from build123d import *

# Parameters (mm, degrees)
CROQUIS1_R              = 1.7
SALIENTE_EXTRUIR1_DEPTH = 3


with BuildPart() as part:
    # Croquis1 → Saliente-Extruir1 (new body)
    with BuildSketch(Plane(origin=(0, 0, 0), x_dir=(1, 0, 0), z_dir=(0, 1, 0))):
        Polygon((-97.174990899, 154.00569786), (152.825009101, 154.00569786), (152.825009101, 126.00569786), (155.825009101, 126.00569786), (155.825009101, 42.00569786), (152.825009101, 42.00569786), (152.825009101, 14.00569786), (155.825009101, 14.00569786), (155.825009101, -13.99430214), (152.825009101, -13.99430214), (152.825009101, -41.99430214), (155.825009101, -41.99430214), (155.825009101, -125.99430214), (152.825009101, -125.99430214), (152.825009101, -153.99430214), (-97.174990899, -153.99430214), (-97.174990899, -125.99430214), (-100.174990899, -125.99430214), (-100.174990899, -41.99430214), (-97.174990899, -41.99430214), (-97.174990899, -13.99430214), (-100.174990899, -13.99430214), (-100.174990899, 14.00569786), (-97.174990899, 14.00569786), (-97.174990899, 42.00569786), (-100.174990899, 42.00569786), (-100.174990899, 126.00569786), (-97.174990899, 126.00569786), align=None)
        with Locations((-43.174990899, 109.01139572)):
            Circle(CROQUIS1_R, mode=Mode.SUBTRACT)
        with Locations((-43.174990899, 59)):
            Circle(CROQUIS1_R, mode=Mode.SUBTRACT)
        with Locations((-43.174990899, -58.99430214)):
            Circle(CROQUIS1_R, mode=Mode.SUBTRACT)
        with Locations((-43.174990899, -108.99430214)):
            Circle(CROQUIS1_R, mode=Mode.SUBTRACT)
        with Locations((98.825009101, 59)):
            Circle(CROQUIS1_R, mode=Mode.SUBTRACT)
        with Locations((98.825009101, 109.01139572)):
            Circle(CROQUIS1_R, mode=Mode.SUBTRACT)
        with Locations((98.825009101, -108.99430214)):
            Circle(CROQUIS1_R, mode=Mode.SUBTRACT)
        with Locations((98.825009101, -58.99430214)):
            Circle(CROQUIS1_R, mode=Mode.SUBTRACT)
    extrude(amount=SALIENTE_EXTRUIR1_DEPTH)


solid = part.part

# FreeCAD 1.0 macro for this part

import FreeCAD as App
import Part
import Sketcher

V = App.Vector
Q = App.Units.Quantity


def add_polygon(sketch, points):
    """Adds a closed chain of lines whose ends are joined by coincident constraints."""
    first, n = sketch.GeometryCount, len(points)
    for a, b in zip(points, points[1:] + points[:1]):
        sketch.addGeometry(Part.LineSegment(App.Vector(*a, 0), App.Vector(*b, 0)), False)
    for i in range(n):
        sketch.addConstraint(Sketcher.Constraint("Coincident", first + i, 2, first + (i + 1) % n, 1))

doc = App.newDocument("Part")
body = doc.addObject("PartDesign::Body", "Body")

# Sketch on XZ plane
sketch1 = body.newObject("Sketcher::SketchObject", "Sketch")
sketch1.AttachmentSupport = (doc.getObject("XZ_Plane"), [""])
sketch1.MapMode = "FlatFace"
add_polygon(sketch1, [(152.825009, -154.005698), (-97.174991, -154.005698), (-97.174991, -126.005698), (-100.174991, -126.005698), (-100.174991, -42.005698), (-97.174991, -42.005698), (-97.174991, -14.005698), (-100.174991, -14.005698), (-100.174991, 13.994302), (-97.174991, 13.994302), (-97.174991, 41.994302), (-100.174991, 41.994302), (-100.174991, 125.994302), (-97.174991, 125.994302), (-97.174991, 153.994302), (152.825009, 153.994302), (152.825009, 125.994302), (155.825009, 125.994302), (155.825009, 41.994302), (152.825009, 41.994302), (152.825009, 13.994302), (155.825009, 13.994302), (155.825009, -14.005698), (152.825009, -14.005698), (152.825009, -42.005698), (155.825009, -42.005698), (155.825009, -126.005698), (152.825009, -126.005698)])  # lines 0-27
sketch1.addGeometry(Part.Circle(V(98.825009, 108.994302, 0), V(0, 0, 1), 1.7), False)  # 28
sketch1.addGeometry(Part.Circle(V(98.825009, 58.994302, 0), V(0, 0, 1), 1.7), False)  # 29
sketch1.addGeometry(Part.Circle(V(-43.174991, 108.994302, 0), V(0, 0, 1), 1.7), False)  # 30
sketch1.addGeometry(Part.Circle(V(-43.174991, 58.994302, 0), V(0, 0, 1), 1.7), False)  # 31
sketch1.addGeometry(Part.Circle(V(98.825009, -59, 0), V(0, 0, 1), 1.7), False)  # 32
sketch1.addGeometry(Part.Circle(V(98.825009, -109.011396, 0), V(0, 0, 1), 1.7), False)  # 33
sketch1.addGeometry(Part.Circle(V(-43.174991, -59, 0), V(0, 0, 1), 1.7), False)  # 34
sketch1.addGeometry(Part.Circle(V(-43.174991, -109.011396, 0), V(0, 0, 1), 1.7), False)  # 35
sketch1.addConstraint(Sketcher.Constraint("Horizontal", 0))
sketch1.addConstraint(Sketcher.Constraint("Vertical", 1))
sketch1.addConstraint(Sketcher.Constraint("Horizontal", 2))
sketch1.addConstraint(Sketcher.Constraint("Vertical", 3))
sketch1.addConstraint(Sketcher.Constraint("Horizontal", 4))
sketch1.addConstraint(Sketcher.Constraint("Vertical", 5))
sketch1.addConstraint(Sketcher.Constraint("Horizontal", 6))
sketch1.addConstraint(Sketcher.Constraint("Vertical", 7))
sketch1.addConstraint(Sketcher.Constraint("Horizontal", 8))
sketch1.addConstraint(Sketcher.Constraint("Vertical", 9))
sketch1.addConstraint(Sketcher.Constraint("Horizontal", 10))
sketch1.addConstraint(Sketcher.Constraint("Vertical", 11))
sketch1.addConstraint(Sketcher.Constraint("Horizontal", 12))
sketch1.addConstraint(Sketcher.Constraint("Vertical", 13))
sketch1.addConstraint(Sketcher.Constraint("Horizontal", 14))
sketch1.addConstraint(Sketcher.Constraint("Vertical", 15))
sketch1.addConstraint(Sketcher.Constraint("Horizontal", 16))
sketch1.addConstraint(Sketcher.Constraint("Vertical", 17))
sketch1.addConstraint(Sketcher.Constraint("Horizontal", 18))
sketch1.addConstraint(Sketcher.Constraint("Vertical", 19))
sketch1.addConstraint(Sketcher.Constraint("Horizontal", 20))
sketch1.addConstraint(Sketcher.Constraint("Vertical", 21))
sketch1.addConstraint(Sketcher.Constraint("Horizontal", 22))
sketch1.addConstraint(Sketcher.Constraint("Vertical", 23))
sketch1.addConstraint(Sketcher.Constraint("Horizontal", 24))
sketch1.addConstraint(Sketcher.Constraint("Vertical", 25))
sketch1.addConstraint(Sketcher.Constraint("Horizontal", 26))
sketch1.addConstraint(Sketcher.Constraint("Vertical", 27))
sketch1.addConstraint(Sketcher.Constraint("Equal", 28, 29))
sketch1.addConstraint(Sketcher.Constraint("Equal", 29, 30))
sketch1.addConstraint(Sketcher.Constraint("Equal", 30, 31))
sketch1.addConstraint(Sketcher.Constraint("Equal", 31, 32))
sketch1.addConstraint(Sketcher.Constraint("Equal", 32, 33))
sketch1.addConstraint(Sketcher.Constraint("Equal", 33, 34))
sketch1.addConstraint(Sketcher.Constraint("Equal", 34, 35))
sketch1.addConstraint(Sketcher.Constraint("Horizontal", 28, 3, 30, 3))
sketch1.addConstraint(Sketcher.Constraint("Horizontal", 29, 3, 31, 3))
sketch1.addConstraint(Sketcher.Constraint("Horizontal", 32, 3, 34, 3))
sketch1.addConstraint(Sketcher.Constraint("Horizontal", 33, 3, 35, 3))
sketch1.addConstraint(Sketcher.Constraint("Horizontal", 12, 2, 15, 2))
sketch1.addConstraint(Sketcher.Constraint("Horizontal", 10, 2, 17, 2))
sketch1.addConstraint(Sketcher.Constraint("Horizontal", 8, 2, 19, 2))
sketch1.addConstraint(Sketcher.Constraint("Horizontal", 6, 2, 21, 2))
sketch1.addConstraint(Sketcher.Constraint("Horizontal", 4, 2, 23, 2))
sketch1.addConstraint(Sketcher.Constraint("Horizontal", 2, 2, 25, 2))
sketch1.addConstraint(Sketcher.Constraint("Vertical", 28, 3, 29, 3))
sketch1.addConstraint(Sketcher.Constraint("Vertical", 30, 3, 31, 3))
sketch1.addConstraint(Sketcher.Constraint("Vertical", 29, 3, 32, 3))
sketch1.addConstraint(Sketcher.Constraint("Vertical", 32, 3, 33, 3))
sketch1.addConstraint(Sketcher.Constraint("Vertical", 31, 3, 34, 3))
sketch1.addConstraint(Sketcher.Constraint("Vertical", 34, 3, 35, 3))
sketch1.addConstraint(Sketcher.Constraint("Vertical", 1, 2, 4, 2))
sketch1.addConstraint(Sketcher.Constraint("Vertical", 3, 2, 6, 2))
sketch1.addConstraint(Sketcher.Constraint("Vertical", 5, 2, 8, 2))
sketch1.addConstraint(Sketcher.Constraint("Vertical", 7, 2, 10, 2))
sketch1.addConstraint(Sketcher.Constraint("Vertical", 9, 2, 12, 2))
sketch1.addConstraint(Sketcher.Constraint("Vertical", 15, 2, 18, 2))
sketch1.addConstraint(Sketcher.Constraint("Vertical", 17, 2, 20, 2))
sketch1.addConstraint(Sketcher.Constraint("Vertical", 19, 2, 22, 2))
sketch1.addConstraint(Sketcher.Constraint("Vertical", 21, 2, 24, 2))
sketch1.addConstraint(Sketcher.Constraint("Vertical", 23, 2, 26, 2))
sketch1.addConstraint(Sketcher.Constraint("Equal", 12, 16))
sketch1.addConstraint(Sketcher.Constraint("Equal", 1, 5))
sketch1.addConstraint(Sketcher.Constraint("Equal", 5, 7))
sketch1.addConstraint(Sketcher.Constraint("Equal", 7, 9))
sketch1.addConstraint(Sketcher.Constraint("Equal", 3, 11))
sketch1.addConstraint(Sketcher.Constraint("Equal", 9, 13))
sketch1.addConstraint(Sketcher.Constraint("Diameter", 28, Q("3.4 mm")))
sketch1.addConstraint(Sketcher.Constraint("DistanceX", 0, 2, 0, 1, Q("250 mm")))
sketch1.addConstraint(Sketcher.Constraint("DistanceX", 2, 2, 2, 1, Q("3 mm")))
sketch1.addConstraint(Sketcher.Constraint("DistanceY", 1, 1, 1, 2, Q("28 mm")))
sketch1.addConstraint(Sketcher.Constraint("DistanceY", 3, 1, 3, 2, Q("84 mm")))
sketch1.addConstraint(Sketcher.Constraint("DistanceY", 32, 3, -1, 1, Q("59 mm")))
sketch1.addConstraint(Sketcher.Constraint("DistanceY", 29, 3, 28, 3, Q("50 mm")))
sketch1.addConstraint(Sketcher.Constraint("DistanceX", 30, 3, 28, 3, Q("142 mm")))
sketch1.addConstraint(Sketcher.Constraint("DistanceX", 0, 2, 35, 3, Q("54 mm")))
sketch1.addConstraint(Sketcher.Constraint("DistanceY", 0, 2, 31, 3, Q("213 mm")))
sketch1.addConstraint(Sketcher.Constraint("DistanceX", -1, 1, 28, 3, Q("98.825009 mm")))
sketch1.addConstraint(Sketcher.Constraint("DistanceY", -1, 1, 28, 3, Q("108.994302 mm")))
sketch1.addConstraint(Sketcher.Constraint("DistanceY", 33, 3, -1, 1, Q("109.011396 mm")))
pad1 = body.newObject("PartDesign::Pad", "Pad")
pad1.Profile = sketch1
pad1.Length = 3
pad1.Reversed = True

doc.recompute()
